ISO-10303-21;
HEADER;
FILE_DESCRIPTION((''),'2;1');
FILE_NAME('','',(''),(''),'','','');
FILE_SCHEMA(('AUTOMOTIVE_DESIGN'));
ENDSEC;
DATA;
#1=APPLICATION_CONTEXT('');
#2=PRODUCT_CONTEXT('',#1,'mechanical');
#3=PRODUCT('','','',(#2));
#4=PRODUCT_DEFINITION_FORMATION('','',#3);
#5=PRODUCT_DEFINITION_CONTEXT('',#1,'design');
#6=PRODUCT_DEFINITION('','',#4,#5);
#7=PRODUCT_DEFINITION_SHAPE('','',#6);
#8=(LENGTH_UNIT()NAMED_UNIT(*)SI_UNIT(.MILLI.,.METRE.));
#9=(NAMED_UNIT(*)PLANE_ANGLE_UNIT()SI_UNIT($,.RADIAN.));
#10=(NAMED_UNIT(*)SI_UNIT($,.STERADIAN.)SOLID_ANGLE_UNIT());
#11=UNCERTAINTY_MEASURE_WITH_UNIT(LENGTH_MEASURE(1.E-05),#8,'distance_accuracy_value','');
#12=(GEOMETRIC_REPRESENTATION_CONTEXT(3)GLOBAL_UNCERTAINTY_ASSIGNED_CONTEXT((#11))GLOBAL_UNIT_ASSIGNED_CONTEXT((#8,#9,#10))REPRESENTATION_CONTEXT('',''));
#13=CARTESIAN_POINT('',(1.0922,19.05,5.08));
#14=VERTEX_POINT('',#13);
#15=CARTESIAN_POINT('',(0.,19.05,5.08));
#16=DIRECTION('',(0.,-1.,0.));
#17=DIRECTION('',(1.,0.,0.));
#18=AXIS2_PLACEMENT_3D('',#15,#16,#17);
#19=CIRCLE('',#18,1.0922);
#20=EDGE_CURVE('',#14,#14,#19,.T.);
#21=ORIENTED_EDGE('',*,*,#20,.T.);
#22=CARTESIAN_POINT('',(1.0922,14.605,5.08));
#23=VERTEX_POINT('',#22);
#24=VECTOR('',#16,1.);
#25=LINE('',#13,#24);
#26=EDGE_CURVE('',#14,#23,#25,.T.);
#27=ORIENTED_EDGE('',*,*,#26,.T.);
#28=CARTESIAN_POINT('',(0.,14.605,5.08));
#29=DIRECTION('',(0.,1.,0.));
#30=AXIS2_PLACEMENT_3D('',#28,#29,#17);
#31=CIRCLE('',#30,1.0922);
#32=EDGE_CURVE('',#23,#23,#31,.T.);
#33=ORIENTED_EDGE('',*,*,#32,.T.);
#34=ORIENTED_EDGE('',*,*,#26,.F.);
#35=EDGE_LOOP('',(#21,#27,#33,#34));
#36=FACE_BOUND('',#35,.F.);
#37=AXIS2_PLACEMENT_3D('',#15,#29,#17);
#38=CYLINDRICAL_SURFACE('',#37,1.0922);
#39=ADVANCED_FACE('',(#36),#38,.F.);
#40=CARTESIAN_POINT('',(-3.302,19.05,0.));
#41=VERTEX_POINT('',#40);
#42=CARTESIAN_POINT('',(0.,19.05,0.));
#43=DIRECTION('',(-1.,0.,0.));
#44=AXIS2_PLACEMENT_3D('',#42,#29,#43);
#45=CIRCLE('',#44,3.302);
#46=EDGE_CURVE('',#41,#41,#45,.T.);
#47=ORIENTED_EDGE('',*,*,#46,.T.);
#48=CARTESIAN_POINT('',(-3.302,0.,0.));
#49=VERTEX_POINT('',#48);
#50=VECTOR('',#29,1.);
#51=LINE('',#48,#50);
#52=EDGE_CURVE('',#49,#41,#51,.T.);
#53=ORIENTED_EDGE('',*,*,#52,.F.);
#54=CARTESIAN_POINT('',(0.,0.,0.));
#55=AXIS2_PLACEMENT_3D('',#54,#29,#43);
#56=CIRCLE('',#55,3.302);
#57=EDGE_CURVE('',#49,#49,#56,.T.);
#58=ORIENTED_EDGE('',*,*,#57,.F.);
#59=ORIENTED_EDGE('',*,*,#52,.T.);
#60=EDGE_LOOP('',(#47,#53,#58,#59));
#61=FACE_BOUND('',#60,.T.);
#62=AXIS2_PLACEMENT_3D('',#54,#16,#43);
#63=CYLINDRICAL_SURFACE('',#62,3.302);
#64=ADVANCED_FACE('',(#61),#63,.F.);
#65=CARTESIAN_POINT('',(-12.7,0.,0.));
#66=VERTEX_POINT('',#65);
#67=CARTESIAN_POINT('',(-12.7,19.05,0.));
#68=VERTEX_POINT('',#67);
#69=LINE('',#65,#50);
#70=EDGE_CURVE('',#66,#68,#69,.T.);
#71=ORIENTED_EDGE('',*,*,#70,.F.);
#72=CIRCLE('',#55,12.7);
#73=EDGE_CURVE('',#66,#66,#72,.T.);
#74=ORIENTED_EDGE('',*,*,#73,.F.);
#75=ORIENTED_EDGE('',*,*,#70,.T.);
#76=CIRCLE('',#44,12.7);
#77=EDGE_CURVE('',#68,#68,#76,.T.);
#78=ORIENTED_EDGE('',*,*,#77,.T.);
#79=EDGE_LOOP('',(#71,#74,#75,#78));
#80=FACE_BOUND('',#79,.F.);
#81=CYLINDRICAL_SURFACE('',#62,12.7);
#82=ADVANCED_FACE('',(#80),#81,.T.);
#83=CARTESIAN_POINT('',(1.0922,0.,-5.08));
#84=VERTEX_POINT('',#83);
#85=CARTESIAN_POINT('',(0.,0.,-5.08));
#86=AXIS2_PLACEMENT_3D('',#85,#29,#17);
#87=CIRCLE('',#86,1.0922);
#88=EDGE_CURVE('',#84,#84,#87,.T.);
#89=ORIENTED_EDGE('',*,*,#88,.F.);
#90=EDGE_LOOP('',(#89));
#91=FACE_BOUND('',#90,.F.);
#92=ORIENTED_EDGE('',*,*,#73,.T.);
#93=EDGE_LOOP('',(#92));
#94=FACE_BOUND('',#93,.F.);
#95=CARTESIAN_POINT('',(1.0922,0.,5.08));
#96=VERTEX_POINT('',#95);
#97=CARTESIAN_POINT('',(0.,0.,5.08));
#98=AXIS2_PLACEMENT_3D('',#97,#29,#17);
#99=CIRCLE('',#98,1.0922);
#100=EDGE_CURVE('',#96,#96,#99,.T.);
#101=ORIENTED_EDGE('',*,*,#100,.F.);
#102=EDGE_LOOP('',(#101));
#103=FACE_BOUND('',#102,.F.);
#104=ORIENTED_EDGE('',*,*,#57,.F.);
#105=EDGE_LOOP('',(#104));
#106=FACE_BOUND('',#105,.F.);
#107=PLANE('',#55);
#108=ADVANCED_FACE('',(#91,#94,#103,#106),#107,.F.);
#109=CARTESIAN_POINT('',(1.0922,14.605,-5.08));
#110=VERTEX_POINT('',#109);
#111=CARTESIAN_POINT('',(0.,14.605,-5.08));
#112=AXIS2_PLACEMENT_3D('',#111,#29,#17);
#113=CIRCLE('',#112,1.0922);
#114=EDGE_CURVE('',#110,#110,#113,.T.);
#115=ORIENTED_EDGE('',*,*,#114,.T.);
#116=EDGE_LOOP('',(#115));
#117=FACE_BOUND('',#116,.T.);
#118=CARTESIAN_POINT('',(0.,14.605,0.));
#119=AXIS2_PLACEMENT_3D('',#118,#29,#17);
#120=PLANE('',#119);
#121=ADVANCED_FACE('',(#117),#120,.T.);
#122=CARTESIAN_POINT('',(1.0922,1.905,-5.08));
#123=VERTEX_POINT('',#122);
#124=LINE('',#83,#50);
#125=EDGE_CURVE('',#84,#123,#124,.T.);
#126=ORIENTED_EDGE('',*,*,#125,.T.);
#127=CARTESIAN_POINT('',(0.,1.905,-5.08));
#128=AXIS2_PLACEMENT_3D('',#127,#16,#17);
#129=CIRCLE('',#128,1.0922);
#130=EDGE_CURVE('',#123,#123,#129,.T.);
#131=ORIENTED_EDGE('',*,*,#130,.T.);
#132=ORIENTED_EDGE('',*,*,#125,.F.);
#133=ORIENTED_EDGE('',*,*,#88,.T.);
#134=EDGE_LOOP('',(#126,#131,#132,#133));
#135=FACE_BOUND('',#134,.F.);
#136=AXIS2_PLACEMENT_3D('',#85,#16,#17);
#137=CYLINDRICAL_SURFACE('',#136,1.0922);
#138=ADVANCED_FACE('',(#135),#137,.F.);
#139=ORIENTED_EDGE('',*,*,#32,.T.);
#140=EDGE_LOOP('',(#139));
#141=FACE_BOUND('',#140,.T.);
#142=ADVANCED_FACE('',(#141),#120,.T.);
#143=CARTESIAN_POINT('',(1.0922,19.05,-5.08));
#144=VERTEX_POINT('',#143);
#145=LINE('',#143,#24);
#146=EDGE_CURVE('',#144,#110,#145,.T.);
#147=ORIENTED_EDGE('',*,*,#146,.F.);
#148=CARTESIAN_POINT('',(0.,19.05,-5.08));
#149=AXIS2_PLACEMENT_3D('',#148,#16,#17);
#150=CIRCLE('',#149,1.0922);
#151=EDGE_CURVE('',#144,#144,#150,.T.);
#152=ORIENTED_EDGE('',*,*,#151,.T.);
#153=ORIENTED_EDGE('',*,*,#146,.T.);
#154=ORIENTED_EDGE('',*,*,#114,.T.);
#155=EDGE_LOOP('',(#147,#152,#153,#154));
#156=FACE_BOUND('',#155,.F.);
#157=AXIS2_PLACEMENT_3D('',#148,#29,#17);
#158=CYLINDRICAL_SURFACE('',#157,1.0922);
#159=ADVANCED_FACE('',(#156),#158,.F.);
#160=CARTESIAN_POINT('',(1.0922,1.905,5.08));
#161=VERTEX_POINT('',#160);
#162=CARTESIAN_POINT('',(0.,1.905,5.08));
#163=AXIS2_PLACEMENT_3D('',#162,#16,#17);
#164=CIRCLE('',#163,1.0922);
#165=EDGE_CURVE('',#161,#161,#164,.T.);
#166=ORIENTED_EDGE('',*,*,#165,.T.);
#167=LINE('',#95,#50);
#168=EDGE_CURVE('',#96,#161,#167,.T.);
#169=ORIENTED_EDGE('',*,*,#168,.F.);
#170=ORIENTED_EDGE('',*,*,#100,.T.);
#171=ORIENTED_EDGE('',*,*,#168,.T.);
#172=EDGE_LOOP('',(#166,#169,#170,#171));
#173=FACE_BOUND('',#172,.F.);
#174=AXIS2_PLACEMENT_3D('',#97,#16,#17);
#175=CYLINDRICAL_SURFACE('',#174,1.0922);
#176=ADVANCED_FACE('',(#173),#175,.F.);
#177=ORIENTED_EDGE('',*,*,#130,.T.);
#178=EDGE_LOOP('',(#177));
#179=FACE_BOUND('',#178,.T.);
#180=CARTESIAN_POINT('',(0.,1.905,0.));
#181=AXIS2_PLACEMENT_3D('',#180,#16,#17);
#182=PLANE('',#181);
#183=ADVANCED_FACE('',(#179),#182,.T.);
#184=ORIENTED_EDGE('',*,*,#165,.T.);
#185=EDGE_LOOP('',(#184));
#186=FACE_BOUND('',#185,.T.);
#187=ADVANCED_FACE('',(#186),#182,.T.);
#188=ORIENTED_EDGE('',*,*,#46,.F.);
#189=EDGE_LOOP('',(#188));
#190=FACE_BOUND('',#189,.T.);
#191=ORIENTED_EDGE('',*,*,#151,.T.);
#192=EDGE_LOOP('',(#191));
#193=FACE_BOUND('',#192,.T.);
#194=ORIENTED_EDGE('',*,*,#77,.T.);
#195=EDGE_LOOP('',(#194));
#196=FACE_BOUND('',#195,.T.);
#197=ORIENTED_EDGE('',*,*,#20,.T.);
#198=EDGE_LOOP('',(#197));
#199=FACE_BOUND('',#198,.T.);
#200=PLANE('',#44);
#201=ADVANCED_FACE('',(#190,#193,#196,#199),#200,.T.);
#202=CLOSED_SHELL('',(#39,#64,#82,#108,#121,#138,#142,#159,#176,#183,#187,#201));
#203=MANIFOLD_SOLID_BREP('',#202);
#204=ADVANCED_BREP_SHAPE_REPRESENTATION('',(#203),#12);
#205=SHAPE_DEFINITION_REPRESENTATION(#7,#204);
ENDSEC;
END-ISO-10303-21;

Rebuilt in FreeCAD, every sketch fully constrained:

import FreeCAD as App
import Part
import Sketcher

V = App.Vector
Q = App.Units.Quantity

doc = App.newDocument("Part")
body = doc.addObject("PartDesign::Body", "Body")

sketch1 = body.newObject("Sketcher::SketchObject", "Sketch")
sketch1.AttachmentSupport = (doc.getObject("XZ_Plane"), [""])
sketch1.MapMode = "FlatFace"
sketch1.addGeometry([
    Part.Circle(V(0, 0, 0), V(0, 0, 1), 12.7),
    Part.Circle(V(0, 0, 0), V(0, 0, 1), 3.3),
], False)
sketch1.addConstraint([
    Sketcher.Constraint("Coincident", 0, 3, -1, 1),
    Sketcher.Constraint("Coincident", 1, 3, -1, 1),
    Sketcher.Constraint("Diameter", 0, Q("1 in")),
    Sketcher.Constraint("Diameter", 1, Q("0.26 in")),
])
pad1 = body.newObject("PartDesign::Pad", "Pad")
pad1.Profile = sketch1
pad1.Length = Q("0.75 in")
pad1.Reversed = True

sketch2 = body.newObject("Sketcher::SketchObject", "Sketch001")
sketch2.AttachmentSupport = (doc.getObject("XZ_Plane"), [""])
sketch2.MapMode = "FlatFace"
sketch2.AttachmentOffset = App.Placement(V(0, 0, -0.75 * 25.4), App.Rotation())
sketch2.addGeometry([
    Part.Circle(V(0, 5.1, 0), V(0, 0, 1), 1.1),
    Part.Circle(V(0, -5.1, 0), V(0, 0, 1), 1.1),
], False)
sketch2.addConstraint([
    Sketcher.Constraint("Equal", 0, 1),
    Sketcher.Constraint("Symmetric", 0, 3, 1, 3, -1, 1),
    Sketcher.Constraint("PointOnObject", 0, 3, -2),
    Sketcher.Constraint("Diameter", 0, Q("0.086 in")),
    Sketcher.Constraint("DistanceY", -1, 1, 0, 3, Q("0.2 in")),
])
pocket1 = body.newObject("PartDesign::Pocket", "Pocket")
pocket1.Profile = sketch2
pocket1.Length = Q("0.175 in")
pocket1.Reversed = True

sketch3 = body.newObject("Sketcher::SketchObject", "Sketch002")
sketch3.AttachmentSupport = (doc.getObject("XZ_Plane"), [""])
sketch3.MapMode = "FlatFace"
sketch3.addGeometry([
    Part.Circle(V(0, 5.1, 0), V(0, 0, 1), 1.1),
    Part.Circle(V(0, -5.1, 0), V(0, 0, 1), 1.1),
], False)
sketch3.addConstraint([
    Sketcher.Constraint("Equal", 0, 1),
    Sketcher.Constraint("Symmetric", 0, 3, 1, 3, -1, 1),
    Sketcher.Constraint("PointOnObject", 0, 3, -2),
    Sketcher.Constraint("Diameter", 0, Q("0.086 in")),
    Sketcher.Constraint("DistanceY", -1, 1, 0, 3, Q("0.2 in")),
])
pocket2 = body.newObject("PartDesign::Pocket", "Pocket001")
pocket2.Profile = sketch3
pocket2.Length = Q("0.075 in")

doc.recompute()
